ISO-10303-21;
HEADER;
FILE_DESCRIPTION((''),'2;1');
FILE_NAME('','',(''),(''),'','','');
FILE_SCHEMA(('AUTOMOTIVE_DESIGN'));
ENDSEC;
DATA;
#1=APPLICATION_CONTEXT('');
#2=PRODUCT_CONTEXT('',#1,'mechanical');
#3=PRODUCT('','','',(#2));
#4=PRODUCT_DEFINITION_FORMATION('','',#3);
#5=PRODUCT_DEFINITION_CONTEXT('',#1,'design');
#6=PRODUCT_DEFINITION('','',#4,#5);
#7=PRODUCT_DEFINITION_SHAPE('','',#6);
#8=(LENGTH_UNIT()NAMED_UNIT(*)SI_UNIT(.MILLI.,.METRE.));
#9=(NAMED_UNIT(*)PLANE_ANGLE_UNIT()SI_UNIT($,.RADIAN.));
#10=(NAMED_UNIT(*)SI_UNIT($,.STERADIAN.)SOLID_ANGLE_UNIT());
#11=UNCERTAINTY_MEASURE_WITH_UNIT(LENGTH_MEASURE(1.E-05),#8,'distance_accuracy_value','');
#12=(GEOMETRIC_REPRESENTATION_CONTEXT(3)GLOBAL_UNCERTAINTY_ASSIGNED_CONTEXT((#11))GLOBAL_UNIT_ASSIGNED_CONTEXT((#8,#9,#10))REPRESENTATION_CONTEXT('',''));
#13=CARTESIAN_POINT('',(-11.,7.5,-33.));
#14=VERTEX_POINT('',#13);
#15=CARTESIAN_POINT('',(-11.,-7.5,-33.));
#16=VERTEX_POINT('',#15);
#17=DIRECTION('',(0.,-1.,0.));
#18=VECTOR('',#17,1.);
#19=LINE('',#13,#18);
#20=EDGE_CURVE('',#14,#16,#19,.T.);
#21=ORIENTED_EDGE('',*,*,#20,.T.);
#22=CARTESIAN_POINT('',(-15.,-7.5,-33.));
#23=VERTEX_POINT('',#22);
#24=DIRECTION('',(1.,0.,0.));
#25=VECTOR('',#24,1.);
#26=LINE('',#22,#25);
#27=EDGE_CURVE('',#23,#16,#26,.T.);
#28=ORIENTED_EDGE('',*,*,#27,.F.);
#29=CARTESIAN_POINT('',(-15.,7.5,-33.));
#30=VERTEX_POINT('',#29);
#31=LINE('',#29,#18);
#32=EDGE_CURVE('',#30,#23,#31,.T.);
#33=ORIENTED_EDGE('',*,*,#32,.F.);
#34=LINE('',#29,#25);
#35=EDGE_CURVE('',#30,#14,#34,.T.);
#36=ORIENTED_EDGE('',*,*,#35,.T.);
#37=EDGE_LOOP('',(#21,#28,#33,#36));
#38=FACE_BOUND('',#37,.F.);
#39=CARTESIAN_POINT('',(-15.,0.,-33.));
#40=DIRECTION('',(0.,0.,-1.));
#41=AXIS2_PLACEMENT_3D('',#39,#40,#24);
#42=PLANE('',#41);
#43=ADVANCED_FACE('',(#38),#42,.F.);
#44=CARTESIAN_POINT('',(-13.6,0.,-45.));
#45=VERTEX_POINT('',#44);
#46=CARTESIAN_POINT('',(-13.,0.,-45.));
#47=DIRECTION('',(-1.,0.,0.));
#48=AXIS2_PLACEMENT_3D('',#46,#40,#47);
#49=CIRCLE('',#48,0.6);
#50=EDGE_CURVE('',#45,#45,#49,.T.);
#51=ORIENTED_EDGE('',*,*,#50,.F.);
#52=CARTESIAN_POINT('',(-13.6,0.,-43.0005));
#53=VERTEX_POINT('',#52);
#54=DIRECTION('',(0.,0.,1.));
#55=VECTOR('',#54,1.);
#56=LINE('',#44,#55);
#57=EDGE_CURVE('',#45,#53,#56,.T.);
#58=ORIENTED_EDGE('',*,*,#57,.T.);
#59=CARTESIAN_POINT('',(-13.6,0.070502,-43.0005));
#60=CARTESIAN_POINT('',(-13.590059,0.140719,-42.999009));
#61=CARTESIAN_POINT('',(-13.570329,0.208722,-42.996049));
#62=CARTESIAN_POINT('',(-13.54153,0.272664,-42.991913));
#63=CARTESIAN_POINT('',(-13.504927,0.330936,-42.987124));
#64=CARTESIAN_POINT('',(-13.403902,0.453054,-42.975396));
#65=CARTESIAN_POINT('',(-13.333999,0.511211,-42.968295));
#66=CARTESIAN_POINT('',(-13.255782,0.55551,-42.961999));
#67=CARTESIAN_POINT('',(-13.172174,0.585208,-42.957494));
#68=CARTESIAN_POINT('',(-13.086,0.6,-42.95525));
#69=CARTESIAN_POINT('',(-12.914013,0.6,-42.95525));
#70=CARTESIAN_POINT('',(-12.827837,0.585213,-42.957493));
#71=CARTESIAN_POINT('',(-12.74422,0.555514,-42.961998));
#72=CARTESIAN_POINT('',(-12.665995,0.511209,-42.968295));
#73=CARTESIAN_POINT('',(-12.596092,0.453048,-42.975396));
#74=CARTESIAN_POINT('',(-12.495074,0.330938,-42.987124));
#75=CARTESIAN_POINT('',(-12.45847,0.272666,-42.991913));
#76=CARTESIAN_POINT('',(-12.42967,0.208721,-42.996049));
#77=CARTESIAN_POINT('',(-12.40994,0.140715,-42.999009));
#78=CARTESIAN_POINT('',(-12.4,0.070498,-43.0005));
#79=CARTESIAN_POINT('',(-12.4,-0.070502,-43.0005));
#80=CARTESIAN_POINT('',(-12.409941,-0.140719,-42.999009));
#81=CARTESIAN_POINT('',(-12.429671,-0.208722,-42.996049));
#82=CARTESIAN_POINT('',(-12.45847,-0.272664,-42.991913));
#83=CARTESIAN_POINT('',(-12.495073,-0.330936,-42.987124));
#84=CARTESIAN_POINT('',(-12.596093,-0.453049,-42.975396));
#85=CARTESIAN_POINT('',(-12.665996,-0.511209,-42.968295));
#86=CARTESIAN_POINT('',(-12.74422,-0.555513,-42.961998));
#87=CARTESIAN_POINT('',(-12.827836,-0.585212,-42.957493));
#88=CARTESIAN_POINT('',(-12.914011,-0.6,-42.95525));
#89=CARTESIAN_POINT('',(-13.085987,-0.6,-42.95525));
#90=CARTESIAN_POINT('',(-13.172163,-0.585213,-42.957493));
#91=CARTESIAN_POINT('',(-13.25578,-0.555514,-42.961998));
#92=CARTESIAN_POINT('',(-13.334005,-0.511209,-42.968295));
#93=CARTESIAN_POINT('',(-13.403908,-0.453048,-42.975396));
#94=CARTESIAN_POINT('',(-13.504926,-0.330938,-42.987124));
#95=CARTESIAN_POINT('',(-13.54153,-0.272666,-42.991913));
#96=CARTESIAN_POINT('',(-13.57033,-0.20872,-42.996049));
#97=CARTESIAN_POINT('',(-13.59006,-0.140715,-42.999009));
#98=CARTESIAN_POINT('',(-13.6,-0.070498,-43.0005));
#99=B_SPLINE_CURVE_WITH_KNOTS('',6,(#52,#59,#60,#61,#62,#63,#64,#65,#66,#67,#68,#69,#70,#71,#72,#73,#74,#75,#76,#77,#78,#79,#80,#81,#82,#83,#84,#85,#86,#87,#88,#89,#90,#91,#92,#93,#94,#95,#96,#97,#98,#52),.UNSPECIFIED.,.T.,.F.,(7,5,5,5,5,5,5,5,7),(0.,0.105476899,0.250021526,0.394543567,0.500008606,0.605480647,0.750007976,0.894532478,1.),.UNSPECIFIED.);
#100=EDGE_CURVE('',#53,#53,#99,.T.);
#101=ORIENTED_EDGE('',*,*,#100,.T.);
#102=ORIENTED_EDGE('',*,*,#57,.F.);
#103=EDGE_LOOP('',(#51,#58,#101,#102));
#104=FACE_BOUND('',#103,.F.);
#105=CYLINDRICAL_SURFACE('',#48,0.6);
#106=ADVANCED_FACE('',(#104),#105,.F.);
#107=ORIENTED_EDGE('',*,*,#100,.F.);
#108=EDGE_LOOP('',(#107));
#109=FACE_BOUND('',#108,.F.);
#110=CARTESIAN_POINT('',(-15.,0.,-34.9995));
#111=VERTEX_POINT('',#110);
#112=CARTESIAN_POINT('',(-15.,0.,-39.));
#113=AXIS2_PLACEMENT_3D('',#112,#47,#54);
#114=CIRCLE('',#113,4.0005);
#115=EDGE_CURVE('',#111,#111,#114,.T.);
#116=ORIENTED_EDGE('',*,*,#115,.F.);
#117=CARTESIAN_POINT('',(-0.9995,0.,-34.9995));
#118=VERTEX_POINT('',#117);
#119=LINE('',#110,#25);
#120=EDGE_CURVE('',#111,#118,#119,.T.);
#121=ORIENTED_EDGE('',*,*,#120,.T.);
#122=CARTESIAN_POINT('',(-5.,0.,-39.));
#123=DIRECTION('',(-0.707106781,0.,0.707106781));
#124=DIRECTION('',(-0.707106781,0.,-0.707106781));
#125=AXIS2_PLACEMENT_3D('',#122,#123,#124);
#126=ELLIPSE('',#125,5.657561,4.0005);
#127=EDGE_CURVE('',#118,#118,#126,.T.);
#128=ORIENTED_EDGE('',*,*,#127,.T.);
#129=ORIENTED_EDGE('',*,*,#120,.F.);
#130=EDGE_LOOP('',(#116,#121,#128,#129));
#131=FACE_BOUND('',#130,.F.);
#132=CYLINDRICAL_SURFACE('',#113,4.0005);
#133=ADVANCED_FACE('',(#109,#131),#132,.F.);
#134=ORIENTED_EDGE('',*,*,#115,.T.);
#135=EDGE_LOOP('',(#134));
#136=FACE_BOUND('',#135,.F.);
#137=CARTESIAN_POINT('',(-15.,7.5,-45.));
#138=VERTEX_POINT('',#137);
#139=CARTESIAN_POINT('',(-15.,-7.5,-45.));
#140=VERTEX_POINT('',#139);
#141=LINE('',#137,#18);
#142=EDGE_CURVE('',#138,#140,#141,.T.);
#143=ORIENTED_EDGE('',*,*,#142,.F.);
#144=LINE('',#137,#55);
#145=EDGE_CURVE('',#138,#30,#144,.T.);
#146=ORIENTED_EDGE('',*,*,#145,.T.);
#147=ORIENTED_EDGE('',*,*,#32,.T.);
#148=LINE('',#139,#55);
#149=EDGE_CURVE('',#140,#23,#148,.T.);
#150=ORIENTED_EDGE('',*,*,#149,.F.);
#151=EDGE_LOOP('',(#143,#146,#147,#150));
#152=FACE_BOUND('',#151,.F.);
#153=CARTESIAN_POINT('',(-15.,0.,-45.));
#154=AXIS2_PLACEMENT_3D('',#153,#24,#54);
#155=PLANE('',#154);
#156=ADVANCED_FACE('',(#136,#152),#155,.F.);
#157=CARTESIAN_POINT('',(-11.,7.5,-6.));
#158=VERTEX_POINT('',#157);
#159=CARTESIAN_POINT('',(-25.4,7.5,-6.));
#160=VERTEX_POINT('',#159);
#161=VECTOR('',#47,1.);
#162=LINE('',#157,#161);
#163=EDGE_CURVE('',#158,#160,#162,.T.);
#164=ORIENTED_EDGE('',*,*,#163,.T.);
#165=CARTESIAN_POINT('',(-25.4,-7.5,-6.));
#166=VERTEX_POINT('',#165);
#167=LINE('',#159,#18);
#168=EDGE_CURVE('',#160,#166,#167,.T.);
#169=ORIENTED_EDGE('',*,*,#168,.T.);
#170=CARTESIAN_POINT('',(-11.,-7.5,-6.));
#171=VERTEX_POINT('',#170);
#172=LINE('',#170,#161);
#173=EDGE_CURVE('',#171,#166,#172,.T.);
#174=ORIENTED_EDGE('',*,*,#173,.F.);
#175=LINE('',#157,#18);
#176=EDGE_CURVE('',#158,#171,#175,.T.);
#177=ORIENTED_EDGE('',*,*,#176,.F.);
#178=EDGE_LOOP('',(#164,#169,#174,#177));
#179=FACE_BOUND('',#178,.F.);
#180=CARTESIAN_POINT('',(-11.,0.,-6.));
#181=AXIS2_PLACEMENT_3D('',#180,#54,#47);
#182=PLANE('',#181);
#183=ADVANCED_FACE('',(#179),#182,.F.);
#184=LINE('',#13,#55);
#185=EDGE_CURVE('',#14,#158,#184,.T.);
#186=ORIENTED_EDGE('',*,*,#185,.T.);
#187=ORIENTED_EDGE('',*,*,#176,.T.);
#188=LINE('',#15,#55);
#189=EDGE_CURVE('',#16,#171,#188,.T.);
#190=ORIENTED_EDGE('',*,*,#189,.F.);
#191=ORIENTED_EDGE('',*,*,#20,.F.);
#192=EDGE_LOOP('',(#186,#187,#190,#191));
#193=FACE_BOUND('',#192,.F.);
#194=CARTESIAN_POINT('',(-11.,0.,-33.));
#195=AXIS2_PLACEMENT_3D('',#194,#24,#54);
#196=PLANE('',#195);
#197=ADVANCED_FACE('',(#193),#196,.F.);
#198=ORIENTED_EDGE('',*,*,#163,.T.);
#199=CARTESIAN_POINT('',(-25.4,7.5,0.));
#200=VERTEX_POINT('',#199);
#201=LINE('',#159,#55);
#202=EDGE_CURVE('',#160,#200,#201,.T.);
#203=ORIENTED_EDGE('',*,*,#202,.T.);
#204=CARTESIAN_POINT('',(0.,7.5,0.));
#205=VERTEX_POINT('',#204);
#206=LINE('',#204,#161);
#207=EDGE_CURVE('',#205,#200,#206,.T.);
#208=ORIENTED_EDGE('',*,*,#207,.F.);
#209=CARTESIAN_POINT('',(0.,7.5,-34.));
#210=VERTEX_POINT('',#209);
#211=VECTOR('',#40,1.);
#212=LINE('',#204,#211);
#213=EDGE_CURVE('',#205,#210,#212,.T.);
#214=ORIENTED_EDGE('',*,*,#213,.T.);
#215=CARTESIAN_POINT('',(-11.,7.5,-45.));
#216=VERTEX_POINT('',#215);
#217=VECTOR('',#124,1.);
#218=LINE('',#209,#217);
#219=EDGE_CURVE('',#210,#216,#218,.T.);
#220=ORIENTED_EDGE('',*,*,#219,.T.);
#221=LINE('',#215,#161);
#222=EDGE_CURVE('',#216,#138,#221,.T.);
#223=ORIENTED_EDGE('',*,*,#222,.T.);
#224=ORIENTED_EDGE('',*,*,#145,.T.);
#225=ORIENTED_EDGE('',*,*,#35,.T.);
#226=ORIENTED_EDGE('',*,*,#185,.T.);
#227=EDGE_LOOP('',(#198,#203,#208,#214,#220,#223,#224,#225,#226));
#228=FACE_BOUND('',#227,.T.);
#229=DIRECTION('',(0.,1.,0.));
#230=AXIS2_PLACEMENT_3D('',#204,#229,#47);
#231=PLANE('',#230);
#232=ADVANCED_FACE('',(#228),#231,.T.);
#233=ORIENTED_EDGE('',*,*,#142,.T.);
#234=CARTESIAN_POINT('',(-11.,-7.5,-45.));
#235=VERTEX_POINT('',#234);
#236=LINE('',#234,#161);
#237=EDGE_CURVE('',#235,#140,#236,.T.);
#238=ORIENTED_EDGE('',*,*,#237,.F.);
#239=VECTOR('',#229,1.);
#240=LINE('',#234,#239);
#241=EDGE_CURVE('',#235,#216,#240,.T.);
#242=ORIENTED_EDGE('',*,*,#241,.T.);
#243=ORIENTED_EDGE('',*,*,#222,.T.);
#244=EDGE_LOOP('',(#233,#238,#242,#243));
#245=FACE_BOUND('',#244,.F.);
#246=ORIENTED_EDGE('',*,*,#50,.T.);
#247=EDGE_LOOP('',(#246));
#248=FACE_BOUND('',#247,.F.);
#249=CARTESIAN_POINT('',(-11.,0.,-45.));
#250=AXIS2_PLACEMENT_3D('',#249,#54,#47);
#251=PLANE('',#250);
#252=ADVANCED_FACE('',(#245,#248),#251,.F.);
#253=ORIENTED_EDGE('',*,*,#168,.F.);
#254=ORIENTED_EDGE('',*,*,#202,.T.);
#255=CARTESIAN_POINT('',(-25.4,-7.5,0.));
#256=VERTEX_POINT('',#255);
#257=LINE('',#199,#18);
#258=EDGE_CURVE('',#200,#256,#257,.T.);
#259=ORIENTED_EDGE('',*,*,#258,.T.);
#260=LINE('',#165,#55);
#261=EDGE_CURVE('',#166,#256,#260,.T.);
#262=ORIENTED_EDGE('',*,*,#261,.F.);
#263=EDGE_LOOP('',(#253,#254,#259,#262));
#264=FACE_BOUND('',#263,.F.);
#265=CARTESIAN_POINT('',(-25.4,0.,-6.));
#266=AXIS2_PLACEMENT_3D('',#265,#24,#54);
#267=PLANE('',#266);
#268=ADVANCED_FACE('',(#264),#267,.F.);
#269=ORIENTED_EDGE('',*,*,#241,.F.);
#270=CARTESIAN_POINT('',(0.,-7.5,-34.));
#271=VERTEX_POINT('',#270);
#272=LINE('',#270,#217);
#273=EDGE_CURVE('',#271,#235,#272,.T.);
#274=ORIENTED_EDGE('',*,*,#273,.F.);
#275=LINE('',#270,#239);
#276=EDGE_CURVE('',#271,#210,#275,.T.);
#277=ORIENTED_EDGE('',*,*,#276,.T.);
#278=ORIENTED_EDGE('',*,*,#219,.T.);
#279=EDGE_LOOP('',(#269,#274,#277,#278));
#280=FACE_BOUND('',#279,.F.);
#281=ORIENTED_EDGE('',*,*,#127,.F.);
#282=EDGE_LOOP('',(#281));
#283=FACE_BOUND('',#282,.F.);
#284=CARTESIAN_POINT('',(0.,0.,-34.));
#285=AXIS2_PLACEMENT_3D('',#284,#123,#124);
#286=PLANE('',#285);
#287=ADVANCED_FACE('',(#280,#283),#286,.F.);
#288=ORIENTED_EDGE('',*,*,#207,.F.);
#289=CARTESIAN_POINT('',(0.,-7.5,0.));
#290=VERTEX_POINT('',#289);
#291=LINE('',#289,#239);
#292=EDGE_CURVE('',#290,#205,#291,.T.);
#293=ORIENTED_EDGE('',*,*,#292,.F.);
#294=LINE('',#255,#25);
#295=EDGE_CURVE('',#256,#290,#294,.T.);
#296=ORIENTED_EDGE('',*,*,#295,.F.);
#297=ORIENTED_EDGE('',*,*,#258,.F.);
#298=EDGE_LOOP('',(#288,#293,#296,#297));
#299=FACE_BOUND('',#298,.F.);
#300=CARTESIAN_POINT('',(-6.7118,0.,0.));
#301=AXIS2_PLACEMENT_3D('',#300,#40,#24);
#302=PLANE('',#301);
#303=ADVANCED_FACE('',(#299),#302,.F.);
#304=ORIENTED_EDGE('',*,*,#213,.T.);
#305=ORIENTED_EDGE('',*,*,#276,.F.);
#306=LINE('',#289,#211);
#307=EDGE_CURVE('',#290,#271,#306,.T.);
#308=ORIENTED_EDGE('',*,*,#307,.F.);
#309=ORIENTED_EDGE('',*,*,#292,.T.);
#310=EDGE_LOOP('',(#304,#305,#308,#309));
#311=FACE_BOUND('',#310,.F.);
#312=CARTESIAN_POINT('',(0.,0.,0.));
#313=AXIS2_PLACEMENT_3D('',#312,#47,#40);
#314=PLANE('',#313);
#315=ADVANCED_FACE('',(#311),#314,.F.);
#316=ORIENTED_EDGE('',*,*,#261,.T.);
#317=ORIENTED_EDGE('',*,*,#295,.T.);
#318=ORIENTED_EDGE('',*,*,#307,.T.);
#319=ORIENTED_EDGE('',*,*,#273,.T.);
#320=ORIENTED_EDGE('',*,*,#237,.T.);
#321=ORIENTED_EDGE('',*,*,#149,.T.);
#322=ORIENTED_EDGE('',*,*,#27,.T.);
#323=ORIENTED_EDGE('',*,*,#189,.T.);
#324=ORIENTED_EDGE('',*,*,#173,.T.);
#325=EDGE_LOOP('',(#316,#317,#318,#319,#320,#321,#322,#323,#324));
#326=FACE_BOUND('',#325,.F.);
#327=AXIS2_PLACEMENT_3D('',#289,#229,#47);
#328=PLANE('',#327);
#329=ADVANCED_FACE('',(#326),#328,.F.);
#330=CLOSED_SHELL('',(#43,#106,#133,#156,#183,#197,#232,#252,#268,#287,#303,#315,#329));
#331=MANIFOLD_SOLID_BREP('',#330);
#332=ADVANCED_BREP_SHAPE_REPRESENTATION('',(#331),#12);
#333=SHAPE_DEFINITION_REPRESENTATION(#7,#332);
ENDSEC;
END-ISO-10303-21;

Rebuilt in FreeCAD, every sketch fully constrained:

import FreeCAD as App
import Part
import Sketcher

V = App.Vector
Q = App.Units.Quantity


def add_polygon(sketch, points):
    """Adds a closed chain of lines whose ends are joined by coincident constraints."""
    first, n = sketch.GeometryCount, len(points)
    for a, b in zip(points, points[1:] + points[:1]):
        sketch.addGeometry(Part.LineSegment(App.Vector(*a, 0), App.Vector(*b, 0)), False)
    for i in range(n):
        sketch.addConstraint(Sketcher.Constraint("Coincident", first + i, 2, first + (i + 1) % n, 1))

doc = App.newDocument("Part")
body = doc.addObject("PartDesign::Body", "Body")

# Sketch on XZ plane
sketch1 = body.newObject("Sketcher::SketchObject", "Sketch")
sketch1.AttachmentSupport = (doc.getObject("XZ_Plane"), [""])
sketch1.MapMode = "FlatFace"
add_polygon(sketch1, [(-25.4, 0), (0, 0), (0, -34), (-11, -45), (-15, -45), (-15, -33), (-11, -33), (-11, -6), (-25.4, -6)])  # lines 0-8
sketch1.addConstraint([
    Sketcher.Constraint("Horizontal", 0),
    Sketcher.Constraint("Vertical", 1),
    Sketcher.Constraint("Horizontal", 3),
    Sketcher.Constraint("Vertical", 4),
    Sketcher.Constraint("Horizontal", 5),
    Sketcher.Constraint("Vertical", 6),
    Sketcher.Constraint("Horizontal", 7),
    Sketcher.Constraint("Vertical", 8),
    Sketcher.Constraint("Coincident", 0, 2, -1, 1),
    Sketcher.Constraint("Vertical", 2, 2, 5, 2),
    Sketcher.Constraint("DistanceX", 3, 2, 3, 1, Q("4 mm")),
    Sketcher.Constraint("DistanceY", 4, 1, 4, 2, Q("12 mm")),
    Sketcher.Constraint("DistanceY", 8, 1, 8, 2, Q("6 mm")),
    Sketcher.Constraint("Angle", 2, Q("-135 deg")),
    Sketcher.Constraint("DistanceX", 0, 1, 0, 2, Q("25.4 mm")),
    Sketcher.Constraint("DistanceY", 2, 2, -1, 1, Q("45 mm")),
    Sketcher.Constraint("DistanceX", 3, 2, -1, 1, Q("15 mm")),
])
pad1 = body.newObject("PartDesign::Pad", "Pad")
pad1.Profile = sketch1
pad1.Length = 15
pad1.Midplane = True

# Sketch on YZ plane
sketch2 = body.newObject("Sketcher::SketchObject", "Sketch001")
sketch2.AttachmentSupport = (doc.getObject("YZ_Plane"), [""])
sketch2.MapMode = "FlatFace"
sketch2.AttachmentOffset = App.Placement(V(0, 0, -15), App.Rotation())
sketch2.addGeometry(Part.Circle(V(0, -39, 0), V(0, 0, 1), 4.0005), False)
sketch2.addConstraint([
    Sketcher.Constraint("PointOnObject", 0, 3, -2),
    Sketcher.Constraint("Diameter", 0, Q("8.001 mm")),
    Sketcher.Constraint("DistanceY", 0, 3, -1, 1, Q("39 mm")),
])
pocket1 = body.newObject("PartDesign::Pocket", "Pocket")
pocket1.Profile = sketch2
pocket1.Type = "ThroughAll"
pocket1.Reversed = True

# Sketch on XY plane
sketch3 = body.newObject("Sketcher::SketchObject", "Sketch002")
sketch3.AttachmentSupport = (doc.getObject("XY_Plane"), [""])
sketch3.MapMode = "FlatFace"
sketch3.AttachmentOffset = App.Placement(V(0, 0, -45), App.Rotation())
sketch3.addGeometry(Part.Circle(V(-13, 0, 0), V(0, 0, 1), 0.6), False)
sketch3.addConstraint([
    Sketcher.Constraint("PointOnObject", 0, 3, -1),
    Sketcher.Constraint("Diameter", 0, Q("1.2 mm")),
    Sketcher.Constraint("DistanceX", 0, 3, -1, 1, Q("13 mm")),
])
pocket2 = body.newObject("PartDesign::Pocket", "Pocket001")
pocket2.Profile = sketch3
pocket2.Type = "UpToFirst"
pocket2.Reversed = True

doc.recompute()
